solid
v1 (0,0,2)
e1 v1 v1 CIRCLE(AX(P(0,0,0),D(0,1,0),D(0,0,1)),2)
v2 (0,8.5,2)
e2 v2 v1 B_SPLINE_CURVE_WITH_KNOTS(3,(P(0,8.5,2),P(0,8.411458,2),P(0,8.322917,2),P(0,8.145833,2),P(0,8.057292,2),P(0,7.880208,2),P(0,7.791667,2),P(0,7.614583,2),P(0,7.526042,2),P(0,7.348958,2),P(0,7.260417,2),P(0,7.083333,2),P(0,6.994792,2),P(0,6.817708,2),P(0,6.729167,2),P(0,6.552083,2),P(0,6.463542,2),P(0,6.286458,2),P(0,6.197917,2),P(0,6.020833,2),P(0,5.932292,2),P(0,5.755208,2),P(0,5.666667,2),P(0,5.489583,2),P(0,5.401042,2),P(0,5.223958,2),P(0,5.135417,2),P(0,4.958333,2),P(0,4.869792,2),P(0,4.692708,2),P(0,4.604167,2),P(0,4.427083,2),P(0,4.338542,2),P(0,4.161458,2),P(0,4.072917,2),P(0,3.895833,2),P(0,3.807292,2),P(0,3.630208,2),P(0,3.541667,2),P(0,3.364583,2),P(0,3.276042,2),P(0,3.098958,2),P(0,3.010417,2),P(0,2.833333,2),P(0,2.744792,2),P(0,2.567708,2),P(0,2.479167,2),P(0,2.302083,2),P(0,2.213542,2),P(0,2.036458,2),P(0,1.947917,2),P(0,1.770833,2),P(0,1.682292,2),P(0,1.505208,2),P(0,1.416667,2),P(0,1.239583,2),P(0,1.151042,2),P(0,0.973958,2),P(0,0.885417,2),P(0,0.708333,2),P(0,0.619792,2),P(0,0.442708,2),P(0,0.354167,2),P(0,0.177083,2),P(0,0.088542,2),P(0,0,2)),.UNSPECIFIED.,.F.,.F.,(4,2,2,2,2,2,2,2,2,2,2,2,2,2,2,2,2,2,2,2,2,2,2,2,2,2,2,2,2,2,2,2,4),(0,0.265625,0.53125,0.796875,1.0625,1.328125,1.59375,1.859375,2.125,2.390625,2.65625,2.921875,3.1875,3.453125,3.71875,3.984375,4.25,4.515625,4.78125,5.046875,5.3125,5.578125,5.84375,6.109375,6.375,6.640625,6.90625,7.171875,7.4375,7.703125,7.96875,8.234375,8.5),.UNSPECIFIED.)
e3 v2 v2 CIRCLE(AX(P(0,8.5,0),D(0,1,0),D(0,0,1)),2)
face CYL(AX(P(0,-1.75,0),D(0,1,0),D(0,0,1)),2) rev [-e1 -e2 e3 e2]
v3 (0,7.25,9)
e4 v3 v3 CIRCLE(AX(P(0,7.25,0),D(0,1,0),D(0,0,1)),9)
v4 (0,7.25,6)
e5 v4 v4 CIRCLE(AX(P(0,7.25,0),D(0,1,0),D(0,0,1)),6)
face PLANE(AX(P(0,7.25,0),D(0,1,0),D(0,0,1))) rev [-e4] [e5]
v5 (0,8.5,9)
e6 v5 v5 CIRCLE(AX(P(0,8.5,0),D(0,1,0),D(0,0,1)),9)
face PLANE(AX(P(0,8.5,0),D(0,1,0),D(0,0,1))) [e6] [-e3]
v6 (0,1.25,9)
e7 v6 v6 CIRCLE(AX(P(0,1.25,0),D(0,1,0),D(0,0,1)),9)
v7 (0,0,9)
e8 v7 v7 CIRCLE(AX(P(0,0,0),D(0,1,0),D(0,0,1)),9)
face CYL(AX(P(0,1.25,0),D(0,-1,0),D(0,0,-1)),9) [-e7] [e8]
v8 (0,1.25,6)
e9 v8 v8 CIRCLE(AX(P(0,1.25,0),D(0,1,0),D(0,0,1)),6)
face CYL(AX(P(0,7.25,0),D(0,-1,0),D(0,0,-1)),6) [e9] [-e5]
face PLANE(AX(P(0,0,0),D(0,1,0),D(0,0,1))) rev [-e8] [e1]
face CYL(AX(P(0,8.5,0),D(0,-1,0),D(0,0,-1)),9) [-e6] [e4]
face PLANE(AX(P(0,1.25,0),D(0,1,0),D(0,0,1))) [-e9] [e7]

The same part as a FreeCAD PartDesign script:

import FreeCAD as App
import Part
import Sketcher

V = App.Vector
Q = App.Units.Quantity

doc = App.newDocument("Part")
body = doc.addObject("PartDesign::Body", "Body")

# Sketch on XZ plane
sketch1 = body.newObject("Sketcher::SketchObject", "Sketch")
sketch1.AttachmentSupport = (doc.getObject("XZ_Plane"), [""])
sketch1.MapMode = "FlatFace"
sketch1.addGeometry(Part.Circle(V(0, 0, 0), V(0, 0, 1), 9), False)
sketch1.addConstraint(Sketcher.Constraint("Coincident", 0, 3, -1, 1))
sketch1.addConstraint(Sketcher.Constraint("Diameter", 0, Q("18 mm")))
pad1 = body.newObject("PartDesign::Pad", "Pad")
pad1.Profile = sketch1
pad1.Length = 1.25
pad1.Reversed = True

# Sketch on XZ plane
sketch2 = body.newObject("Sketcher::SketchObject", "Sketch001")
sketch2.AttachmentSupport = (doc.getObject("XZ_Plane"), [""])
sketch2.MapMode = "FlatFace"
sketch2.AttachmentOffset = App.Placement(V(0, 0, -1.25), App.Rotation())
sketch2.addGeometry(Part.Circle(V(0, 0, 0), V(0, 0, 1), 6), False)
sketch2.addConstraint(Sketcher.Constraint("Coincident", 0, 3, -1, 1))
sketch2.addConstraint(Sketcher.Constraint("Diameter", 0, Q("12 mm")))
pad2 = body.newObject("PartDesign::Pad", "Pad001")
pad2.Profile = sketch2
pad2.Length = 6
pad2.Reversed = True

# Sketch on XZ plane
sketch3 = body.newObject("Sketcher::SketchObject", "Sketch002")
sketch3.AttachmentSupport = (doc.getObject("XZ_Plane"), [""])
sketch3.MapMode = "FlatFace"
sketch3.AttachmentOffset = App.Placement(V(0, 0, -7.25), App.Rotation())
sketch3.addGeometry(Part.Circle(V(0, 0, 0), V(0, 0, 1), 9), False)
sketch3.addConstraint(Sketcher.Constraint("Coincident", 0, 3, -1, 1))
sketch3.addConstraint(Sketcher.Constraint("Diameter", 0, Q("18 mm")))
pad3 = body.newObject("PartDesign::Pad", "Pad002")
pad3.Profile = sketch3
pad3.Length = 1.25
pad3.Reversed = True

# Sketch on XZ plane
sketch4 = body.newObject("Sketcher::SketchObject", "Sketch003")
sketch4.AttachmentSupport = (doc.getObject("XZ_Plane"), [""])
sketch4.MapMode = "FlatFace"
sketch4.AttachmentOffset = App.Placement(V(0, 0, -8.5), App.Rotation())
sketch4.addGeometry(Part.Circle(V(0, 0, 0), V(0, 0, 1), 2), False)
sketch4.addConstraint(Sketcher.Constraint("Coincident", 0, 3, -1, 1))
sketch4.addConstraint(Sketcher.Constraint("Diameter", 0, Q("4 mm")))
pocket1 = body.newObject("PartDesign::Pocket", "Pocket")
pocket1.Profile = sketch4
pocket1.Length = 10.25
pocket1.Reversed = True

doc.recompute()
